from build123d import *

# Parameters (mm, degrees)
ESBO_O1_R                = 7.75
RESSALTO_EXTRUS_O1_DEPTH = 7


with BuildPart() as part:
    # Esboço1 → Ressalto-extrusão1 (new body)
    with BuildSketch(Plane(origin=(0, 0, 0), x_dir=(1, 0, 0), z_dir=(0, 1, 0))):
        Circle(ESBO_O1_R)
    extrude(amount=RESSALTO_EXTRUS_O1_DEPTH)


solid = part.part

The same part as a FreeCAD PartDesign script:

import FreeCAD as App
import Part
import Sketcher
Q = App.Units.Quantity

doc = App.newDocument("Part")
body = doc.addObject("PartDesign::Body", "Body")

# Sketch on XZ plane
sketch1 = body.newObject("Sketcher::SketchObject", "Sketch")
sketch1.AttachmentSupport = (doc.getObject("XZ_Plane"), [""])
sketch1.MapMode = "FlatFace"
sketch1.addGeometry(Part.Circle(App.Vector(0, 0, 0), App.Vector(0, 0, 1), 8), False)
sketch1.addConstraint([
    Sketcher.Constraint("Coincident", 0, 3, -1, 1),
    Sketcher.Constraint("Diameter", 0, Q("15.5 mm")),
])
pad1 = body.newObject("PartDesign::Pad", "Pad")
pad1.Profile = sketch1
pad1.Length = 7
pad1.Reversed = True

doc.recompute()
